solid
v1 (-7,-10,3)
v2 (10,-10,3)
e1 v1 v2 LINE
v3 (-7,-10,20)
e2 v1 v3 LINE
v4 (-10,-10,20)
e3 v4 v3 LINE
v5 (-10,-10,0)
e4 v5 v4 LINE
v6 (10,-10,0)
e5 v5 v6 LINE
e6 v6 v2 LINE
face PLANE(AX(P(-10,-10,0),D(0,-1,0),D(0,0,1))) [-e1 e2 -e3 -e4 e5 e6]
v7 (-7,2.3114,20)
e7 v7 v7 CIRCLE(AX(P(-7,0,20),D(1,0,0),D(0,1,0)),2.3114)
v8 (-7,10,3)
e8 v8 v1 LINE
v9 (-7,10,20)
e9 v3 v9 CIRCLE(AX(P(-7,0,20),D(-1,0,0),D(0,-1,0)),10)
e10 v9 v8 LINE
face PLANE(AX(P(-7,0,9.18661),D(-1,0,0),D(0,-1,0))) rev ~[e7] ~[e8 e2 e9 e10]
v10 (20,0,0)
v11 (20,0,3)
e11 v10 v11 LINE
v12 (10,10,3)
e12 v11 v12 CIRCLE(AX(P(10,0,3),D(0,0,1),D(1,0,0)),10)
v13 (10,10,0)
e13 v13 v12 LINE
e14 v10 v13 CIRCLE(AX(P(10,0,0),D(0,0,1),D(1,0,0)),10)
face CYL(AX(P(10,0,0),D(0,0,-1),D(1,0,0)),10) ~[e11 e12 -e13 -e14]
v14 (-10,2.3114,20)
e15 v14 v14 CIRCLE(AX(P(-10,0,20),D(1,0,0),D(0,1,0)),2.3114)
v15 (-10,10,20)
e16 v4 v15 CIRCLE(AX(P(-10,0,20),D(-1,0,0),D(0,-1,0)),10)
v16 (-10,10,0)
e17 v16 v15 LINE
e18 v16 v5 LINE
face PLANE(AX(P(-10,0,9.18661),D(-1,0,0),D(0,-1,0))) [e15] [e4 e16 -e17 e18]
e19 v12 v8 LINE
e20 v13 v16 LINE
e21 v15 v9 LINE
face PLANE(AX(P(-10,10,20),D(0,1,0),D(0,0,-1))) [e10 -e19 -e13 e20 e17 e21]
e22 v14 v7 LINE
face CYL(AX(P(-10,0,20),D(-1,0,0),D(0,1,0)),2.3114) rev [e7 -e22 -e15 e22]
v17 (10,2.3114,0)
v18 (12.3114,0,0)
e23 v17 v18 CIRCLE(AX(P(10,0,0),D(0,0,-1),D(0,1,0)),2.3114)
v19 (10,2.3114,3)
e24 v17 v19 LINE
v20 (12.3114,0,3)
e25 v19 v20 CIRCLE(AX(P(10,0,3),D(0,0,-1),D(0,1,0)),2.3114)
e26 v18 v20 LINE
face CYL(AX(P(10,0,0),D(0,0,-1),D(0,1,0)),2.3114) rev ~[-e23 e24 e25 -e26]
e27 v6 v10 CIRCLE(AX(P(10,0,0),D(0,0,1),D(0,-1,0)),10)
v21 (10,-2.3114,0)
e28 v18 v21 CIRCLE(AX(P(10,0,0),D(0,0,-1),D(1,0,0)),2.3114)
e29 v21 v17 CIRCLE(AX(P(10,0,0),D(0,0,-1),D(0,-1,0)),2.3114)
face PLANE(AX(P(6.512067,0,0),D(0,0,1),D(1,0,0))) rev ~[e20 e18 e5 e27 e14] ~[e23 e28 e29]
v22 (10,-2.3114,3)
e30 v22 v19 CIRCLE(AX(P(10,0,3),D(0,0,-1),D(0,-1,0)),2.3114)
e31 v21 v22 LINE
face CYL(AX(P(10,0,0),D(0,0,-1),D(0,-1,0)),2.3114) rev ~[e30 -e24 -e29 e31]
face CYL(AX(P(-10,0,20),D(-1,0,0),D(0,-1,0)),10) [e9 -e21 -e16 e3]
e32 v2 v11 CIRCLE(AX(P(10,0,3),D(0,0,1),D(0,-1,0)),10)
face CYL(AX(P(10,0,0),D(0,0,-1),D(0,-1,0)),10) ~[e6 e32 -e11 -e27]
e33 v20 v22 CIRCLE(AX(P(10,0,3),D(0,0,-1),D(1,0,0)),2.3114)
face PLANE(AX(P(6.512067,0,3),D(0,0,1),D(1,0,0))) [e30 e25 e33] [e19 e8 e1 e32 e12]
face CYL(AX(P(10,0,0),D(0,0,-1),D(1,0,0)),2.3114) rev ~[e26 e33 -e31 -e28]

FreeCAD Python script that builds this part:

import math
import FreeCAD as App
import Part
import Sketcher

V = App.Vector
Q = App.Units.Quantity

doc = App.newDocument("Part")
body = doc.addObject("PartDesign::Body", "Body")

sketch1 = body.newObject("Sketcher::SketchObject", "Sketch")
sketch1.AttachmentSupport = (doc.getObject("XY_Plane"), [""])
sketch1.MapMode = "FlatFace"
sketch1.addGeometry([
    Part.LineSegment(V(10, 10, 0), V(-10, 10, 0)),
    Part.LineSegment(V(-10, 10, 0), V(-10, -10, 0)),
    Part.LineSegment(V(-10, -10, 0), V(10, -10, 0)),
    Part.ArcOfCircle(Part.Circle(V(10, 0, 0), V(0, 0, 1), 10), math.radians(-90), math.radians(0)),
    Part.ArcOfCircle(Part.Circle(V(10, 0, 0), V(0, 0, 1), 10), math.radians(0), math.radians(90)),
    Part.ArcOfCircle(Part.Circle(V(10, 0, 0), V(0, 0, 1), 2.3), math.radians(90), math.radians(270)),
    Part.ArcOfCircle(Part.Circle(V(10, 0, 0), V(0, 0, 1), 2.3), math.radians(0), math.radians(90)),
    Part.ArcOfCircle(Part.Circle(V(10, 0, 0), V(0, 0, 1), 2.3), math.radians(-90), math.radians(0)),
], False)
sketch1.addConstraint([
    Sketcher.Constraint("Coincident", 0, 2, 1, 1),
    Sketcher.Constraint("Coincident", 1, 2, 2, 1),
    Sketcher.Constraint("Tangent", 2, 2, 3, 1),
    Sketcher.Constraint("Tangent", 3, 2, 4, 1),
    Sketcher.Constraint("Tangent", 4, 2, 0, 1),
    Sketcher.Constraint("Tangent", 5, 1, 6, 2),
    Sketcher.Constraint("Tangent", 6, 1, 7, 2),
    Sketcher.Constraint("Tangent", 7, 1, 5, 2),
    Sketcher.Constraint("Horizontal", 0),
    Sketcher.Constraint("Vertical", 1),
    Sketcher.Constraint("Horizontal", 2),
    Sketcher.Constraint("Coincident", 5, 3, 3, 3),
    Sketcher.Constraint("Equal", 3, 4),
    Sketcher.Constraint("Symmetric", 0, 2, 2, 2, -1, 1),
    Sketcher.Constraint("PointOnObject", 3, 2, -1),
    Sketcher.Constraint("PointOnObject", 6, 1, -1),
    Sketcher.Constraint("Vertical", 4, 2, 5, 1),
    Sketcher.Constraint("Vertical", 5, 1, 7, 1),
    Sketcher.Constraint("Equal", 2, 1),
    Sketcher.Constraint("Radius", 3, Q("10 mm")),
    Sketcher.Constraint("Radius", 5, Q("2.3114 mm")),
])
pad1 = body.newObject("PartDesign::Pad", "Pad")
pad1.Profile = sketch1
pad1.Length = 3

sketch2 = body.newObject("Sketcher::SketchObject", "Sketch001")
sketch2.AttachmentSupport = (doc.getObject("YZ_Plane"), [""])
sketch2.MapMode = "FlatFace"
sketch2.AttachmentOffset = App.Placement(V(0, 0, -10), App.Rotation())
sketch2.addGeometry([
    Part.LineSegment(V(10, 20, 0), V(10, 0, 0)),
    Part.LineSegment(V(10, 0, 0), V(-10, 0, 0)),
    Part.LineSegment(V(-10, 0, 0), V(-10, 20, 0)),
    Part.ArcOfCircle(Part.Circle(V(0, 20, 0), V(0, 0, 1), 10), math.radians(0), math.radians(180)),
    Part.Circle(V(0, 20, 0), V(0, 0, 1), 2.3),
], False)
sketch2.addConstraint([
    Sketcher.Constraint("Coincident", 0, 2, 1, 1),
    Sketcher.Constraint("Coincident", 1, 2, 2, 1),
    Sketcher.Constraint("Tangent", 2, 2, 3, 2),
    Sketcher.Constraint("Tangent", 3, 1, 0, 1),
    Sketcher.Constraint("Vertical", 0),
    Sketcher.Constraint("Horizontal", 1),
    Sketcher.Constraint("Vertical", 2),
    Sketcher.Constraint("Coincident", 4, 3, 3, 3),
    Sketcher.Constraint("Symmetric", 0, 2, 1, 2, -1, 1),
    Sketcher.Constraint("Equal", 1, 0),
    Sketcher.Constraint("Radius", 3, Q("10 mm")),
    Sketcher.Constraint("Diameter", 4, Q("4.6228 mm")),
])
pad2 = body.newObject("PartDesign::Pad", "Pad001")
pad2.Profile = sketch2
pad2.Length = 3

doc.recompute()
